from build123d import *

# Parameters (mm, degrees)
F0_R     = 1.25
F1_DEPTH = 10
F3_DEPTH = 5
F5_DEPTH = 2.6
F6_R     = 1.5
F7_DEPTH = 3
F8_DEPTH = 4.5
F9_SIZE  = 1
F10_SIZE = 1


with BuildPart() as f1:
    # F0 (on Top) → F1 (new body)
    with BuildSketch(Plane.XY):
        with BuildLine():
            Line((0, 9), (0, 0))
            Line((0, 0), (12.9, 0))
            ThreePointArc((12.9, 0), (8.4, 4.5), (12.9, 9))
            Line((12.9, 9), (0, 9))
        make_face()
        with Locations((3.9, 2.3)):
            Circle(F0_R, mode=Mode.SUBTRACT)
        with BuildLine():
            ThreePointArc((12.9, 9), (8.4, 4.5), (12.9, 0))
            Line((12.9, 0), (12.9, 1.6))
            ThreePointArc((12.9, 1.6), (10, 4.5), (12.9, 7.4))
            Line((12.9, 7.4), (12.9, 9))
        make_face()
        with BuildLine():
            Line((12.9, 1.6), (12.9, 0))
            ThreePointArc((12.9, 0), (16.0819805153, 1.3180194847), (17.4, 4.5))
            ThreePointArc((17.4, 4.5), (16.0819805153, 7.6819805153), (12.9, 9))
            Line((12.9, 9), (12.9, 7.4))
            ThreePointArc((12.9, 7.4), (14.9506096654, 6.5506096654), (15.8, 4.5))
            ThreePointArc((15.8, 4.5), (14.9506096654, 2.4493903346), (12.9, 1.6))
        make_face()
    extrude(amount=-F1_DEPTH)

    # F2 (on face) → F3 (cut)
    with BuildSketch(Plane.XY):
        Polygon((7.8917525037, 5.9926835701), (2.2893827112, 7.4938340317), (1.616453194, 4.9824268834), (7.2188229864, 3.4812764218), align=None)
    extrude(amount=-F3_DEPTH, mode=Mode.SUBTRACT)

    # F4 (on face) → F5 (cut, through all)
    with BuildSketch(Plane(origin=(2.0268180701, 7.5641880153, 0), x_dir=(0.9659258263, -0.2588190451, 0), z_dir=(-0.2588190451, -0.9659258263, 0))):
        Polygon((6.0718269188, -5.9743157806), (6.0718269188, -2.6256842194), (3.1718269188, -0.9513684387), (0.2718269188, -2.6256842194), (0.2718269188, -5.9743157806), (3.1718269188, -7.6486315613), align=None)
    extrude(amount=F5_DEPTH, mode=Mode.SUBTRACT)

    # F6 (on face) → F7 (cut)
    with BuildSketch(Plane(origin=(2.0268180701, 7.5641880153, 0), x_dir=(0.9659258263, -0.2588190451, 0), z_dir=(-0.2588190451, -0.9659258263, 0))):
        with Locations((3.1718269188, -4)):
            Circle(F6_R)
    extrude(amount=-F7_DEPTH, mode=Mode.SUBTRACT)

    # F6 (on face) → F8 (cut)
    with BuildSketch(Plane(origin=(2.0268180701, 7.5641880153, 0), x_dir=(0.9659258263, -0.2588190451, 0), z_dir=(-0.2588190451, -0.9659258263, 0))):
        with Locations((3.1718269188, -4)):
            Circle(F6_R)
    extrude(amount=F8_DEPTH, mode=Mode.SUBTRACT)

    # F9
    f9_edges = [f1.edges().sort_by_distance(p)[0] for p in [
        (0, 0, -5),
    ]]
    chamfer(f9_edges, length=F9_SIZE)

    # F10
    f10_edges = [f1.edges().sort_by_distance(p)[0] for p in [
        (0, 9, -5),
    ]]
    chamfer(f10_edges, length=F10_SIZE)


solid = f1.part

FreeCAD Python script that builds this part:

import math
import FreeCAD as App
import Part
import Sketcher

V = App.Vector
Q = App.Units.Quantity


def edges_at(feature, points):
    """Names of the edges that pass closest to the given points."""
    edges = feature.Shape.Edges
    near = lambda p: min(range(len(edges)), key=lambda i: edges[i].distToShape(Part.Vertex(*p))[0])
    return sorted({f"Edge{near(p) + 1}" for p in points})

doc = App.newDocument("Part")
body = doc.addObject("PartDesign::Body", "Body")

sketch1 = body.newObject("Sketcher::SketchObject", "Sketch")
sketch1.AttachmentSupport = (doc.getObject("XY_Plane"), [""])
sketch1.MapMode = "FlatFace"
sketch1.addGeometry([
    Part.LineSegment(V(0, 9, 0), V(0, 0, 0)),
    Part.LineSegment(V(0, 0, 0), V(12.9, 0, 0)),
    Part.ArcOfCircle(Part.Circle(V(12.9, 4.5, 0), V(0, 0, 1), 4.5), math.radians(-90), math.radians(0)),
    Part.ArcOfCircle(Part.Circle(V(12.9, 4.5, 0), V(0, 0, 1), 4.5), math.radians(0), math.radians(90)),
    Part.LineSegment(V(12.9, 9, 0), V(0, 9, 0)),
    Part.ArcOfCircle(Part.Circle(V(12.9, 4.5, 0), V(0, 0, 1), 2.9), math.radians(90), math.radians(270)),
    Part.ArcOfCircle(Part.Circle(V(12.9, 4.5, 0), V(0, 0, 1), 2.9), math.radians(0), math.radians(90)),
    Part.ArcOfCircle(Part.Circle(V(12.9, 4.5, 0), V(0, 0, 1), 2.9), math.radians(-90), math.radians(0)),
    Part.Circle(V(3.9, 2.3, 0), V(0, 0, 1), 1.2),
], False)
sketch1.addConstraint([
    Sketcher.Constraint("Coincident", 0, 2, 1, 1),
    Sketcher.Constraint("Tangent", 1, 2, 2, 1),
    Sketcher.Constraint("Tangent", 2, 2, 3, 1),
    Sketcher.Constraint("Tangent", 3, 2, 4, 1),
    Sketcher.Constraint("Coincident", 4, 2, 0, 1),
    Sketcher.Constraint("Tangent", 5, 1, 6, 2),
    Sketcher.Constraint("Tangent", 6, 1, 7, 2),
    Sketcher.Constraint("Tangent", 7, 1, 5, 2),
    Sketcher.Constraint("Vertical", 0),
    Sketcher.Constraint("Horizontal", 1),
    Sketcher.Constraint("Horizontal", 4),
    Sketcher.Constraint("Coincident", 0, 2, -1, 1),
    Sketcher.Constraint("Coincident", 5, 3, 2, 3),
    Sketcher.Constraint("Equal", 2, 3),
    Sketcher.Constraint("Horizontal", 7, 3, 2, 2),
    Sketcher.Constraint("Horizontal", 2, 2, 6, 1),
    Sketcher.Constraint("Vertical", 3, 2, 5, 1),
    Sketcher.Constraint("Vertical", 5, 1, 7, 1),
    Sketcher.Constraint("Diameter", 8, Q("2.5 mm")),
    Sketcher.Constraint("Radius", 2, Q("4.5 mm")),
    Sketcher.Constraint("Radius", 5, Q("2.9 mm")),
    Sketcher.Constraint("DistanceX", 1, 1, 1, 2, Q("12.9 mm")),
    Sketcher.Constraint("DistanceX", 8, 3, 2, 3, Q("9 mm")),
    Sketcher.Constraint("DistanceY", -1, 1, 8, 3, Q("2.3 mm")),
])
pad1 = body.newObject("PartDesign::Pad", "Pad")
pad1.Profile = sketch1
pad1.Length = 10
pad1.Reversed = True

sketch2 = body.newObject("Sketcher::SketchObject", "Sketch001")
sketch2.AttachmentSupport = (doc.getObject("XY_Plane"), [""])
sketch2.MapMode = "FlatFace"
sketch2.addGeometry([
    Part.LineSegment(V(7.9, 6, 0), V(2.3, 7.5, 0)),
    Part.LineSegment(V(2.3, 7.5, 0), V(1.6, 5, 0)),
    Part.LineSegment(V(1.6, 5, 0), V(7.2, 3.5, 0)),
    Part.LineSegment(V(7.2, 3.5, 0), V(7.9, 6, 0)),
], False)
sketch2.addConstraint([
    Sketcher.Constraint("Coincident", 0, 2, 1, 1),
    Sketcher.Constraint("Coincident", 1, 2, 2, 1),
    Sketcher.Constraint("Coincident", 2, 2, 3, 1),
    Sketcher.Constraint("Coincident", 3, 2, 0, 1),
    Sketcher.Constraint("Perpendicular", 0, 1),
    Sketcher.Constraint("Perpendicular", 1, 2),
    Sketcher.Constraint("Perpendicular", 2, 3),
    Sketcher.Constraint("Angle", 0, Q("165 deg")),
    Sketcher.Constraint("Distance", 0, Q("5.8 mm")),
    Sketcher.Constraint("Distance", 1, Q("2.6 mm")),
    Sketcher.Constraint("DistanceX", -1, 1, 0, 2, Q("2.289383 mm")),
    Sketcher.Constraint("DistanceY", -1, 1, 0, 2, Q("7.493834 mm")),
])
pocket1 = body.newObject("PartDesign::Pocket", "Pocket")
pocket1.Profile = sketch2
pocket1.Length = 5

sketch3 = body.newObject("Sketcher::SketchObject", "Sketch002")
sketch3.Placement = App.Placement(V(2.026818, 7.564188, 0), App.Rotation(V(0.965925826, -0.258819045, 0), V(0, 0, 0.999999999), V(-0.258819045, -0.965925826, 0), "ZXY"))
sketch3.addGeometry([
    Part.LineSegment(V(6.1, -6, 0), V(6.1, -2.6, 0)),
    Part.LineSegment(V(6.1, -2.6, 0), V(3.2, -1, 0)),
    Part.LineSegment(V(3.2, -1, 0), V(0.3, -2.6, 0)),
    Part.LineSegment(V(0.3, -2.6, 0), V(0.3, -6, 0)),
    Part.LineSegment(V(0.3, -6, 0), V(3.2, -7.6, 0)),
    Part.LineSegment(V(3.2, -7.6, 0), V(6.1, -6, 0)),
], False)
sketch3.addConstraint([
    Sketcher.Constraint("Coincident", 0, 2, 1, 1),
    Sketcher.Constraint("Coincident", 1, 2, 2, 1),
    Sketcher.Constraint("Coincident", 2, 2, 3, 1),
    Sketcher.Constraint("Coincident", 3, 2, 4, 1),
    Sketcher.Constraint("Coincident", 4, 2, 5, 1),
    Sketcher.Constraint("Coincident", 5, 2, 0, 1),
    Sketcher.Constraint("Vertical", 0),
    Sketcher.Constraint("Vertical", 3),
    Sketcher.Constraint("Parallel", 1, 4),
    Sketcher.Constraint("Parallel", 2, 5),
    Sketcher.Constraint("Horizontal", 0, 2, 2, 2),
    Sketcher.Constraint("Horizontal", 3, 2, 5, 2),
    Sketcher.Constraint("Vertical", 1, 2, 4, 2),
    Sketcher.Constraint("Angle", 1, Q("150 deg")),
    Sketcher.Constraint("DistanceX", 1, 2, 0, 2, Q("2.9 mm")),
    Sketcher.Constraint("DistanceY", 0, 1, 0, 2, Q("3.348632 mm")),
    Sketcher.Constraint("DistanceY", 1, 2, -1, 1, Q("0.951368 mm")),
    Sketcher.Constraint("DistanceX", -1, 1, 0, 2, Q("6.071827 mm")),
])
pocket2 = body.newObject("PartDesign::Pocket", "Pocket001")
pocket2.Profile = sketch3
pocket2.Length = 2.6
pocket2.Reversed = True

sketch4 = body.newObject("Sketcher::SketchObject", "Sketch003")
sketch4.Placement = App.Placement(V(2.026818, 7.564188, 0), App.Rotation(V(0.965925826, -0.258819045, 0), V(0, 0, 0.999999999), V(-0.258819045, -0.965925826, 0), "ZXY"))
sketch4.addGeometry(Part.Circle(V(3.2, -4, 0), V(0, 0, 1), 1.5), False)
sketch4.addConstraint([
    Sketcher.Constraint("Diameter", 0, Q("3 mm")),
    Sketcher.Constraint("DistanceY", 0, 3, -1, 1, Q("4 mm")),
    Sketcher.Constraint("DistanceX", -1, 1, 0, 3, Q("3.171827 mm")),
])
pocket3 = body.newObject("PartDesign::Pocket", "Pocket002")
pocket3.Profile = sketch4
pocket3.Length = 3

sketch5 = body.newObject("Sketcher::SketchObject", "Sketch004")
sketch5.Placement = App.Placement(V(2.026818, 7.564188, 0), App.Rotation(V(0.965925826, -0.258819045, 0), V(0, 0, 0.999999999), V(-0.258819045, -0.965925826, 0), "ZXY"))
sketch5.addGeometry(Part.Circle(V(3.2, -4, 0), V(0, 0, 1), 1.5), False)
sketch5.addConstraint([
    Sketcher.Constraint("Diameter", 0, Q("3 mm")),
    Sketcher.Constraint("DistanceY", 0, 3, -1, 1, Q("4 mm")),
    Sketcher.Constraint("DistanceX", -1, 1, 0, 3, Q("3.171827 mm")),
])
pocket4 = body.newObject("PartDesign::Pocket", "Pocket003")
pocket4.Profile = sketch5
pocket4.Length = 4.5
pocket4.Reversed = True
doc.recompute()

chamfer = body.newObject("PartDesign::Chamfer", "Chamfer")
chamfer.Base = (pocket4, edges_at(pocket4, [(0, 0, -5)]))
chamfer.Size = 1
doc.recompute()

chamfer2 = body.newObject("PartDesign::Chamfer", "Chamfer001")
chamfer2.Base = (chamfer, edges_at(chamfer, [(0, 9, -5)]))
chamfer2.Size = 1

doc.recompute()
